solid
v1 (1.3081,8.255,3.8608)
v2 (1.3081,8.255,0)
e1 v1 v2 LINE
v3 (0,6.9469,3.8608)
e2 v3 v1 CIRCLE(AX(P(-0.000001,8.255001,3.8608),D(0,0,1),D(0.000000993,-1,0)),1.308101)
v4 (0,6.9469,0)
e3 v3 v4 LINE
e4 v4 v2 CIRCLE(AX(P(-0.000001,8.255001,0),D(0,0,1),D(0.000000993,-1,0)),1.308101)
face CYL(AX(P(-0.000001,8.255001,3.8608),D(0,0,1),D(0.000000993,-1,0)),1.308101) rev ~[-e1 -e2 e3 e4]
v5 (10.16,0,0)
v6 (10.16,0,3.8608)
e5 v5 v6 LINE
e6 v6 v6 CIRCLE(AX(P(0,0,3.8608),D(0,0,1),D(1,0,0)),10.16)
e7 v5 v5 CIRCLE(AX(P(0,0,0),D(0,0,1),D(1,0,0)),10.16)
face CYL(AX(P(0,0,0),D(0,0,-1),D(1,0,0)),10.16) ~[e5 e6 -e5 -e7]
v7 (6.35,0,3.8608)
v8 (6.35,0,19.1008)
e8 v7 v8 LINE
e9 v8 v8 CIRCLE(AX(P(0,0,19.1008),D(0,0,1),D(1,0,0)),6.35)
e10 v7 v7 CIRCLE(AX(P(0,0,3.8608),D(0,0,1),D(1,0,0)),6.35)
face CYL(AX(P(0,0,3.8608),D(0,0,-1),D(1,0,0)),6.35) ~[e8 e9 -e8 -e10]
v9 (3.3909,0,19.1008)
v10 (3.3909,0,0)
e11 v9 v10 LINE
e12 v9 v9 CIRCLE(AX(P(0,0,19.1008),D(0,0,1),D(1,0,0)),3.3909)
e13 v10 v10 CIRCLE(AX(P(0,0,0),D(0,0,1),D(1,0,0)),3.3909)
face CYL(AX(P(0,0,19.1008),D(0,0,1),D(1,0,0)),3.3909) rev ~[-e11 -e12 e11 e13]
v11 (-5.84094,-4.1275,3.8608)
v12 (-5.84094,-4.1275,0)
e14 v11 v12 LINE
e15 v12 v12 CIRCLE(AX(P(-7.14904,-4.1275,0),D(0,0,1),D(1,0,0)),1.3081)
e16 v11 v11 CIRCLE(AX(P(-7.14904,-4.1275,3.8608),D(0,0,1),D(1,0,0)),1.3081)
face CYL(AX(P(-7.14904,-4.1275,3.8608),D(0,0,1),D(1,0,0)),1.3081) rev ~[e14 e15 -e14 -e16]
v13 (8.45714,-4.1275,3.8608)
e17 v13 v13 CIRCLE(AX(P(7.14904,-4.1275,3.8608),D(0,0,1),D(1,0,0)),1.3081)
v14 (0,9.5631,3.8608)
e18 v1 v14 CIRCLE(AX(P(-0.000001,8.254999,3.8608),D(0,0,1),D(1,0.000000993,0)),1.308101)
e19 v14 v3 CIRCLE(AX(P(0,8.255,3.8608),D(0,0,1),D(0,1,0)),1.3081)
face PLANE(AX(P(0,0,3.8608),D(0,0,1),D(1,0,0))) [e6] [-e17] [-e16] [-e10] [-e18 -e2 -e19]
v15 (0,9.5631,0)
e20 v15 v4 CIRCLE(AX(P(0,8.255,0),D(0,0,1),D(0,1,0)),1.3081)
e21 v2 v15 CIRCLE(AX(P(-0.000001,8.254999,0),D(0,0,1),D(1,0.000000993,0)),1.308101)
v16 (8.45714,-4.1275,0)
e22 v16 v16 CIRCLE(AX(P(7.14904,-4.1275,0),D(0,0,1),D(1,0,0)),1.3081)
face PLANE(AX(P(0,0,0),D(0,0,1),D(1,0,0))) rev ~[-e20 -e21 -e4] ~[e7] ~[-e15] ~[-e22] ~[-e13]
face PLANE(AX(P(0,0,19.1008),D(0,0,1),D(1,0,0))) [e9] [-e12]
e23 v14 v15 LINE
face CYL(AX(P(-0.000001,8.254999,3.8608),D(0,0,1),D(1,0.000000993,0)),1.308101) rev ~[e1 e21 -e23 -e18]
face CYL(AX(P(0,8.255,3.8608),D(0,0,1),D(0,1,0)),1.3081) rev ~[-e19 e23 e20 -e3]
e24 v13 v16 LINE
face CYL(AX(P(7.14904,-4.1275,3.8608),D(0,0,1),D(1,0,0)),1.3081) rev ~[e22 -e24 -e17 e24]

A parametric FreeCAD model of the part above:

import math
import FreeCAD as App
import Part
import Sketcher
Q = App.Units.Quantity

doc = App.newDocument("Part")
body = doc.addObject("PartDesign::Body", "Body")

# Sketch on XY plane
sketch1 = body.newObject("Sketcher::SketchObject", "Sketch")
sketch1.AttachmentSupport = (doc.getObject("XY_Plane"), [""])
sketch1.MapMode = "FlatFace"
sketch1.addGeometry(Part.Circle(App.Vector(0, 0, 0), App.Vector(0, 0, 1), 10.16), False)
sketch1.addConstraint([
    Sketcher.Constraint("Coincident", 0, 3, -1, 1),
    Sketcher.Constraint("Diameter", 0, Q("0.8 in")),
])
pad1 = body.newObject("PartDesign::Pad", "Pad")
pad1.Profile = sketch1
pad1.Length = Q("0.152 in")

# Sketch on XY plane
sketch2 = body.newObject("Sketcher::SketchObject", "Sketch001")
sketch2.AttachmentSupport = (doc.getObject("XY_Plane"), [""])
sketch2.MapMode = "FlatFace"
sketch2.AttachmentOffset = App.Placement(App.Vector(0, 0, 0.152 * 25.4), App.Rotation())
sketch2.addGeometry(Part.Circle(App.Vector(0, 0, 0), App.Vector(0, 0, 1), 6.35), False)
sketch2.addConstraint([
    Sketcher.Constraint("Coincident", 0, 3, -1, 1),
    Sketcher.Constraint("Diameter", 0, Q("0.5 in")),
])
pad2 = body.newObject("PartDesign::Pad", "Pad001")
pad2.Profile = sketch2
pad2.Length = Q("0.6 in")

# Sketch on XY plane
sketch3 = body.newObject("Sketcher::SketchObject", "Sketch002")
sketch3.AttachmentSupport = (doc.getObject("XY_Plane"), [""])
sketch3.MapMode = "FlatFace"
sketch3.AttachmentOffset = App.Placement(App.Vector(0, 0, 0.152 * 25.4), App.Rotation())
sketch3.addGeometry([
    Part.ArcOfCircle(Part.Circle(App.Vector(-0.000001, 8.255001, 0), App.Vector(0, 0, 1), 1.308101), math.radians(-89.999943), math.radians(-0.000057)),  # 0
    Part.ArcOfCircle(Part.Circle(App.Vector(-0.000001, 8.254999, 0), App.Vector(0, 0, 1), 1.308101), math.radians(0.000057), math.radians(89.999943)),  # 1
    Part.ArcOfCircle(Part.Circle(App.Vector(0, 8.255, 0), App.Vector(0, 0, 1), 1.3081), math.radians(90), math.radians(270)),  # 2
    Part.Circle(App.Vector(-7.14904, -4.1275, 0), App.Vector(0, 0, 1), 1.3081),  # 3
    Part.Circle(App.Vector(7.14904, -4.1275, 0), App.Vector(0, 0, 1), 1.3081),  # 4
], False)
sketch3.addConstraint([
    Sketcher.Constraint("Tangent", 0, 2, 1, 1),
    Sketcher.Constraint("Tangent", 1, 2, 2, 1),
    Sketcher.Constraint("Tangent", 2, 2, 0, 1),
    Sketcher.Constraint("Equal", 2, 3),
    Sketcher.Constraint("Equal", 3, 4),
    Sketcher.Constraint("Symmetric", 3, 3, 4, 3, -2),
    Sketcher.Constraint("PointOnObject", 0, 3, -2),
    Sketcher.Constraint("PointOnObject", 1, 2, -2),
    Sketcher.Constraint("PointOnObject", 2, 2, -2),
    Sketcher.Constraint("Horizontal", 2, 3, 0, 2),
    Sketcher.Constraint("Diameter", 3, Q("0.103 in")),
    Sketcher.Constraint("DistanceY", -1, 1, 0, 3, Q("0.3250001 in")),
    Sketcher.Constraint("DistanceY", 3, 3, 1, 2, Q("0.539 in")),
    Sketcher.Constraint("DistanceX", 3, 3, -1, 1, Q("7.14904 mm")),
])
pocket1 = body.newObject("PartDesign::Pocket", "Pocket")
pocket1.Profile = sketch3
pocket1.Type = "ThroughAll"

# Sketch on XY plane
sketch4 = body.newObject("Sketcher::SketchObject", "Sketch003")
sketch4.AttachmentSupport = (doc.getObject("XY_Plane"), [""])
sketch4.MapMode = "FlatFace"
sketch4.AttachmentOffset = App.Placement(App.Vector(0, 0, 0.752 * 25.4), App.Rotation())
sketch4.addGeometry(Part.Circle(App.Vector(0, 0, 0), App.Vector(0, 0, 1), 3.3909), False)
sketch4.addConstraint([
    Sketcher.Constraint("Coincident", 0, 3, -1, 1),
    Sketcher.Constraint("Diameter", 0, Q("0.267 in")),
])
pocket2 = body.newObject("PartDesign::Pocket", "Pocket001")
pocket2.Profile = sketch4
pocket2.Type = "ThroughAll"

doc.recompute()
